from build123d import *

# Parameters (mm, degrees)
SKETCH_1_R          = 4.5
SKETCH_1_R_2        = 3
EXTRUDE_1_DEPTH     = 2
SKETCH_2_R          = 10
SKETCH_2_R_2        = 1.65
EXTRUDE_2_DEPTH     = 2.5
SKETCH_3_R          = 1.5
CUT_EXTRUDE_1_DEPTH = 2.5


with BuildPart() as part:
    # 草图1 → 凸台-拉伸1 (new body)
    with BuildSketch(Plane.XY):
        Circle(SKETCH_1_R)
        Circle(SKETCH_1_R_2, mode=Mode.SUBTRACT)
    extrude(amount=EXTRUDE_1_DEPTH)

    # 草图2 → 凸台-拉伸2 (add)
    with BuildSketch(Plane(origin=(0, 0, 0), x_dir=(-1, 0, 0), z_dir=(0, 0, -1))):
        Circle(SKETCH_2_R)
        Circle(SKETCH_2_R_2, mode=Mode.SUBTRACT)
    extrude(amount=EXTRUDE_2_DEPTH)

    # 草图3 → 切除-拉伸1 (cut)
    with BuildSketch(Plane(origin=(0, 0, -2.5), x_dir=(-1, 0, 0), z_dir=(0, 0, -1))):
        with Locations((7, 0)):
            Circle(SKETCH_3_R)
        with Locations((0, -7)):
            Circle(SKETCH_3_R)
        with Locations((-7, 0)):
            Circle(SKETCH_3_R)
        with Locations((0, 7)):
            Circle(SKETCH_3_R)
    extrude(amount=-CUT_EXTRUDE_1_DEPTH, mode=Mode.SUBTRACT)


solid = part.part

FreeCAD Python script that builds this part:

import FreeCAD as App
import Part
import Sketcher
from FreeCAD import Vector
Q = App.Units.Quantity

doc = App.newDocument("Part")
params = doc.addObject("Spreadsheet::Sheet", "Params")
for row, (alias, value) in enumerate([
    ("sketch1_diameter", "9 mm"),
    ("sketch1_diameter2", "6 mm"),
    ("pad1_length", "2 mm"),
    ("sketch2_diameter", "20 mm"),
    ("sketch2_diameter2", "3.3 mm"),
    ("pad2_length", "2.5 mm"),
    ("sketch3_diameter", "3 mm"),
    ("pocket1_length", "2.5 mm"),
], start=1):
    params.set(f"A{row}", alias)
    params.set(f"B{row}", "=" + value)
    params.setAlias(f"B{row}", alias)

body = doc.addObject("PartDesign::Body", "Body")

# Sketch on XY plane
sketch1 = body.newObject("Sketcher::SketchObject", "Sketch")
sketch1.AttachmentSupport = (doc.getObject("XY_Plane"), [""])
sketch1.MapMode = "FlatFace"
sketch1.addGeometry([
    Part.Circle(Vector(0, 0, 0), Vector(0, 0, 1), 4.5),
    Part.Circle(Vector(0, 0, 0), Vector(0, 0, 1), 3),
], False)
sketch1.addConstraint([
    Sketcher.Constraint("Coincident", 0, 3, -1, 1),
    Sketcher.Constraint("Coincident", 1, 3, -1, 1),
    Sketcher.Constraint("Diameter", 0, Q("9 mm")),
    Sketcher.Constraint("Diameter", 1, Q("6 mm")),
])
sketch1.setExpression("Constraints[2]", "Params.sketch1_diameter")
sketch1.setExpression("Constraints[3]", "Params.sketch1_diameter2")
pad1 = body.newObject("PartDesign::Pad", "Pad")
pad1.Profile = sketch1
pad1.setExpression("Length", "Params.pad1_length")

# Sketch on XY plane
sketch2 = body.newObject("Sketcher::SketchObject", "Sketch001")
sketch2.AttachmentSupport = (doc.getObject("XY_Plane"), [""])
sketch2.MapMode = "FlatFace"
sketch2.addGeometry([
    Part.Circle(Vector(0, 0, 0), Vector(0, 0, 1), 10),
    Part.Circle(Vector(0, 0, 0), Vector(0, 0, 1), 1.6),
], False)
sketch2.addConstraint([
    Sketcher.Constraint("Coincident", 0, 3, -1, 1),
    Sketcher.Constraint("Coincident", 1, 3, -1, 1),
    Sketcher.Constraint("Diameter", 0, Q("20 mm")),
    Sketcher.Constraint("Diameter", 1, Q("3.3 mm")),
])
sketch2.setExpression("Constraints[2]", "Params.sketch2_diameter")
sketch2.setExpression("Constraints[3]", "Params.sketch2_diameter2")
pad2 = body.newObject("PartDesign::Pad", "Pad001")
pad2.Profile = sketch2
pad2.setExpression("Length", "Params.pad2_length")
pad2.Reversed = True

# Sketch on XY plane
sketch3 = body.newObject("Sketcher::SketchObject", "Sketch002")
sketch3.AttachmentSupport = (doc.getObject("XY_Plane"), [""])
sketch3.MapMode = "FlatFace"
sketch3.AttachmentOffset = App.Placement(Vector(0, 0, -2.5), App.Rotation())
sketch3.addGeometry([
    Part.Circle(Vector(-7, 0, 0), Vector(0, 0, 1), 1.5),
    Part.Circle(Vector(0, -7, 0), Vector(0, 0, 1), 1.5),
    Part.Circle(Vector(7, 0, 0), Vector(0, 0, 1), 1.5),
    Part.Circle(Vector(0, 7, 0), Vector(0, 0, 1), 1.5),
], False)
sketch3.addConstraint([
    Sketcher.Constraint("Equal", 0, 1),
    Sketcher.Constraint("Equal", 1, 2),
    Sketcher.Constraint("Equal", 2, 3),
    Sketcher.Constraint("Symmetric", 0, 3, 2, 3, -1, 1),
    Sketcher.Constraint("Symmetric", 1, 3, 3, 3, -1, 1),
    Sketcher.Constraint("PointOnObject", 0, 3, -1),
    Sketcher.Constraint("PointOnObject", 1, 3, -2),
    Sketcher.Constraint("Diameter", 0, Q("3 mm")),
    Sketcher.Constraint("DistanceX", 0, 3, -1, 1, Q("7 mm")),
    Sketcher.Constraint("DistanceY", 1, 3, -1, 1, Q("7 mm")),
])
sketch3.setExpression("Constraints[7]", "Params.sketch3_diameter")
pocket1 = body.newObject("PartDesign::Pocket", "Pocket")
pocket1.Profile = sketch3
pocket1.setExpression("Length", "Params.pocket1_length")
pocket1.Reversed = True

doc.recompute()
